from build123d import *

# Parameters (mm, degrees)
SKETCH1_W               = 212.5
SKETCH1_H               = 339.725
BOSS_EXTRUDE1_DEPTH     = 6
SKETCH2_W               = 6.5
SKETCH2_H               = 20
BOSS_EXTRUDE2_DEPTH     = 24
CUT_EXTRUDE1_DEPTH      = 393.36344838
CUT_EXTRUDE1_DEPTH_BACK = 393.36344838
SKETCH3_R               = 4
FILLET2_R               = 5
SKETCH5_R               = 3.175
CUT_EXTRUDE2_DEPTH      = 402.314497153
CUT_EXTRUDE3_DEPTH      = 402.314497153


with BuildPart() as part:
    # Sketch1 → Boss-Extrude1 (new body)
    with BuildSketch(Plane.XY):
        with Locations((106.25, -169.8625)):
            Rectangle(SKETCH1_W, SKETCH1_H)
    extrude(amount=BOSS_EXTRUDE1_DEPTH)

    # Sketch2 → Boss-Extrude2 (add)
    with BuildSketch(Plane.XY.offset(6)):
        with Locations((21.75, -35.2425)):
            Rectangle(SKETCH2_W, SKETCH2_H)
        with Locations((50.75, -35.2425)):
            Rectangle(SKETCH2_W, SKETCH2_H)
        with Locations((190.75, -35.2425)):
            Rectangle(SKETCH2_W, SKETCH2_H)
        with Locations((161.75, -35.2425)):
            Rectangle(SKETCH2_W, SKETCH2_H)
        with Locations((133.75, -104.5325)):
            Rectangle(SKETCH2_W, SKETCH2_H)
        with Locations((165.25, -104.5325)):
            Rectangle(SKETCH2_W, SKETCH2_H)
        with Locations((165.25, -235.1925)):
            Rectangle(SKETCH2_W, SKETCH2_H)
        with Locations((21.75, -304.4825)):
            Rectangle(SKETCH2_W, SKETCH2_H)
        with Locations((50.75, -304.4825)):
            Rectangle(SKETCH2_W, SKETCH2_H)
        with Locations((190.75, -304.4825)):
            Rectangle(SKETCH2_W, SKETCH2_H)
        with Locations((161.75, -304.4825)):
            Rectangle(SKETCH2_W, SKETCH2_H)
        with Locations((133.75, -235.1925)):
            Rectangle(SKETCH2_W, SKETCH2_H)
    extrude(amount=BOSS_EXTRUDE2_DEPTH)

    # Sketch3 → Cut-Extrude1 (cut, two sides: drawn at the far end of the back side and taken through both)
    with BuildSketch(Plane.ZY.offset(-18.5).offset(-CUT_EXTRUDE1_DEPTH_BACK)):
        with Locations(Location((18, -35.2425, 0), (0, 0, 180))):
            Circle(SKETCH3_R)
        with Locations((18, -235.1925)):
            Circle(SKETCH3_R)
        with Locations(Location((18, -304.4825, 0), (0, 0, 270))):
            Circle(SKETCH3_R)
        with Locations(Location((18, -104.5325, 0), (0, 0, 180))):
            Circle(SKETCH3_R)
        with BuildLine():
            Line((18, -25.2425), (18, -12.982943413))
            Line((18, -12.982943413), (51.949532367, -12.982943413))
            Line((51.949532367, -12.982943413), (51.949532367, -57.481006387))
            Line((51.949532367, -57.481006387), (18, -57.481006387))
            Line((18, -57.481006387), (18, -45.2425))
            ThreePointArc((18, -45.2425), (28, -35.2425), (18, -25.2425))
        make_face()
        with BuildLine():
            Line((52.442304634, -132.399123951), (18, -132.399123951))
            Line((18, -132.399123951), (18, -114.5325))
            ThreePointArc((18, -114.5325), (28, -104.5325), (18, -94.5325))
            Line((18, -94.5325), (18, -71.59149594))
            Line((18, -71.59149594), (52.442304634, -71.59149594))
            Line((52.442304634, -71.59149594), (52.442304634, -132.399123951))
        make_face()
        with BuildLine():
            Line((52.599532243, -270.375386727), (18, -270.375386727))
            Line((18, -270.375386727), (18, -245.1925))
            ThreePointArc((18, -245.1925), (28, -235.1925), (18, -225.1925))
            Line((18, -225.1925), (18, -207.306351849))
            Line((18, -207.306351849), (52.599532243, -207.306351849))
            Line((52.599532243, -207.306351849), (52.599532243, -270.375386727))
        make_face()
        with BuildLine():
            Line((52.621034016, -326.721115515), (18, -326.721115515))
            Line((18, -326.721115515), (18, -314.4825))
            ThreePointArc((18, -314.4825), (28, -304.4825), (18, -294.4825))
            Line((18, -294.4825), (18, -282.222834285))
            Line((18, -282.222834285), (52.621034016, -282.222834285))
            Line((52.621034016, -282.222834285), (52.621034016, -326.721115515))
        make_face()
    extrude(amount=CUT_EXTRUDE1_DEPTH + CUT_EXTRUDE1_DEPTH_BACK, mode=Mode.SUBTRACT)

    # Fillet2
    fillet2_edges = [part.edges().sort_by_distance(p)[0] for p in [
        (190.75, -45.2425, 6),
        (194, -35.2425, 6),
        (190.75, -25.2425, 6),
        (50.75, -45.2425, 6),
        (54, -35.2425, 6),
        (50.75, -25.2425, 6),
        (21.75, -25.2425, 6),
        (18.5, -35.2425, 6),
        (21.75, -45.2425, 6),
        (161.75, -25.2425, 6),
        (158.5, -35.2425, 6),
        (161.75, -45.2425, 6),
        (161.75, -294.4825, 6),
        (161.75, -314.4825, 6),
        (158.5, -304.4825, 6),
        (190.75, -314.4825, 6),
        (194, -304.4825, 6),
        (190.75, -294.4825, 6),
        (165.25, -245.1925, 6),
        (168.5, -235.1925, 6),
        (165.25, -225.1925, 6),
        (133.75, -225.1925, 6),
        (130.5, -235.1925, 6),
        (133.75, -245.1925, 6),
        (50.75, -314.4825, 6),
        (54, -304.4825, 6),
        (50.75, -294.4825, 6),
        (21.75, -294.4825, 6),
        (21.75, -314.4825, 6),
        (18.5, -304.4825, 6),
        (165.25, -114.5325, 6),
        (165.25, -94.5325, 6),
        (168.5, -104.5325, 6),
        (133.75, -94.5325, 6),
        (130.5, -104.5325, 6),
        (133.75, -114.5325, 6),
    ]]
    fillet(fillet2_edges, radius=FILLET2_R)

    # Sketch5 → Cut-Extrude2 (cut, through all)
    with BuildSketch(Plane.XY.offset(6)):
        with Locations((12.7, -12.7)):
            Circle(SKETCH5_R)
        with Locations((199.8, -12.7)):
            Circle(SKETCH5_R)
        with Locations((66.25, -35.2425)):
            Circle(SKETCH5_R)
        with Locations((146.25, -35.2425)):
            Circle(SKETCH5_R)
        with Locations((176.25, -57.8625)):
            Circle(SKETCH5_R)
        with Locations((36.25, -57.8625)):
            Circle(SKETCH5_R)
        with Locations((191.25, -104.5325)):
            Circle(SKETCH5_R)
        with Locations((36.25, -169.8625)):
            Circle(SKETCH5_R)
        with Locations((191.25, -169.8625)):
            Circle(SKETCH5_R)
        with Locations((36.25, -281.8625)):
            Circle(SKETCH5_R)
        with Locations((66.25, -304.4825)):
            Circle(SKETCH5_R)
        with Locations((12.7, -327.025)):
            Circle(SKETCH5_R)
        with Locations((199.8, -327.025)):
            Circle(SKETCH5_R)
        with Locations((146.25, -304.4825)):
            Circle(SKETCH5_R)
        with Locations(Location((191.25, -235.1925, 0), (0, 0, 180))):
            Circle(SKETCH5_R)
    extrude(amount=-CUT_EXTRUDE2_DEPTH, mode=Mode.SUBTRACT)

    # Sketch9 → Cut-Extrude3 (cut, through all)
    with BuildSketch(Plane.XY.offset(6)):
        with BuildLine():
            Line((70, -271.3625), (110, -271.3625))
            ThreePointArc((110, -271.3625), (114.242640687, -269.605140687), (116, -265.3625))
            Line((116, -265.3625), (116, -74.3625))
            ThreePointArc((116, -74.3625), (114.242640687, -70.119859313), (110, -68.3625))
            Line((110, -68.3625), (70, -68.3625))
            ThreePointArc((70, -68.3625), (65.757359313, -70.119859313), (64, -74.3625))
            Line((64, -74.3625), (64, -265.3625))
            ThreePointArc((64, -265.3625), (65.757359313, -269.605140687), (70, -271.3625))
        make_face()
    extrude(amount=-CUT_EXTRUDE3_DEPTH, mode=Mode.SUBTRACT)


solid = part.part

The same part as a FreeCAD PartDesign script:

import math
import FreeCAD as App
import Part
import Sketcher
from FreeCAD import Vector


def edges_at(feature, points):
    """Names of the edges that pass closest to the given points."""
    edges = feature.Shape.Edges
    near = lambda p: min(range(len(edges)), key=lambda i: edges[i].distToShape(Part.Vertex(*p))[0])
    return sorted({f"Edge{near(p) + 1}" for p in points})

doc = App.newDocument("Part")
body = doc.addObject("PartDesign::Body", "Body")

sketch1 = body.newObject("Sketcher::SketchObject", "Sketch")
sketch1.AttachmentSupport = (doc.getObject("XY_Plane"), [""])
sketch1.MapMode = "FlatFace"
sketch1.addGeometry([
    Part.LineSegment(Vector(0, 0, 0), Vector(0, -340, 0)),
    Part.LineSegment(Vector(0, -340, 0), Vector(212, -340, 0)),
    Part.LineSegment(Vector(212, -340, 0), Vector(212, 0, 0)),
    Part.LineSegment(Vector(212, 0, 0), Vector(0, 0, 0)),
], False)
sketch1.addConstraint([
    Sketcher.Constraint("Coincident", 0, 2, 1, 1),
    Sketcher.Constraint("Coincident", 1, 2, 2, 1),
    Sketcher.Constraint("Coincident", 2, 2, 3, 1),
    Sketcher.Constraint("Coincident", 3, 2, 0, 1),
    Sketcher.Constraint("Vertical", 0),
    Sketcher.Constraint("Horizontal", 1),
    Sketcher.Constraint("Vertical", 2),
    Sketcher.Constraint("Horizontal", 3),
    Sketcher.Constraint("Coincident", 3, 2, -1, 1),
    Sketcher.Constraint("DistanceX", 1, 1, 1, 2, 212.5),
    Sketcher.Constraint("DistanceY", 0, 2, 0, 1, 339.725),
])
pad1 = body.newObject("PartDesign::Pad", "Pad")
pad1.Profile = sketch1
pad1.Length = 6

sketch2 = body.newObject("Sketcher::SketchObject", "Sketch001")
sketch2.AttachmentSupport = (doc.getObject("XY_Plane"), [""])
sketch2.MapMode = "FlatFace"
sketch2.AttachmentOffset = App.Placement(Vector(0, 0, 6), App.Rotation())
sketch2.addGeometry([
    Part.LineSegment(Vector(18, -25, 0), Vector(18, -45, 0)),
    Part.LineSegment(Vector(18, -45, 0), Vector(25, -45, 0)),
    Part.LineSegment(Vector(25, -45, 0), Vector(25, -25, 0)),
    Part.LineSegment(Vector(25, -25, 0), Vector(18, -25, 0)),
    Part.LineSegment(Vector(48, -25, 0), Vector(48, -45, 0)),
    Part.LineSegment(Vector(48, -45, 0), Vector(54, -45, 0)),
    Part.LineSegment(Vector(54, -45, 0), Vector(54, -25, 0)),
    Part.LineSegment(Vector(54, -25, 0), Vector(48, -25, 0)),
    Part.LineSegment(Vector(188, -25, 0), Vector(188, -45, 0)),
    Part.LineSegment(Vector(188, -45, 0), Vector(194, -45, 0)),
    Part.LineSegment(Vector(194, -45, 0), Vector(194, -25, 0)),
    Part.LineSegment(Vector(194, -25, 0), Vector(188, -25, 0)),
    Part.LineSegment(Vector(158, -25, 0), Vector(158, -45, 0)),
    Part.LineSegment(Vector(158, -45, 0), Vector(165, -45, 0)),
    Part.LineSegment(Vector(165, -45, 0), Vector(165, -25, 0)),
    Part.LineSegment(Vector(165, -25, 0), Vector(158, -25, 0)),
    Part.LineSegment(Vector(130, -95, 0), Vector(130, -115, 0)),
    Part.LineSegment(Vector(130, -115, 0), Vector(137, -115, 0)),
    Part.LineSegment(Vector(137, -115, 0), Vector(137, -95, 0)),
    Part.LineSegment(Vector(137, -95, 0), Vector(130, -95, 0)),
    Part.LineSegment(Vector(162, -95, 0), Vector(162, -115, 0)),
    Part.LineSegment(Vector(162, -115, 0), Vector(168, -115, 0)),
    Part.LineSegment(Vector(168, -115, 0), Vector(168, -95, 0)),
    Part.LineSegment(Vector(168, -95, 0), Vector(162, -95, 0)),
    Part.LineSegment(Vector(162, -225, 0), Vector(162, -245, 0)),
    Part.LineSegment(Vector(162, -245, 0), Vector(168, -245, 0)),
    Part.LineSegment(Vector(168, -245, 0), Vector(168, -225, 0)),
    Part.LineSegment(Vector(168, -225, 0), Vector(162, -225, 0)),
    Part.LineSegment(Vector(18, -294, 0), Vector(18, -314, 0)),
    Part.LineSegment(Vector(18, -314, 0), Vector(25, -314, 0)),
    Part.LineSegment(Vector(25, -314, 0), Vector(25, -294, 0)),
    Part.LineSegment(Vector(25, -294, 0), Vector(18, -294, 0)),
    Part.LineSegment(Vector(48, -294, 0), Vector(48, -314, 0)),
    Part.LineSegment(Vector(48, -314, 0), Vector(54, -314, 0)),
    Part.LineSegment(Vector(54, -314, 0), Vector(54, -294, 0)),
    Part.LineSegment(Vector(54, -294, 0), Vector(48, -294, 0)),
    Part.LineSegment(Vector(188, -294, 0), Vector(188, -314, 0)),
    Part.LineSegment(Vector(188, -314, 0), Vector(194, -314, 0)),
    Part.LineSegment(Vector(194, -314, 0), Vector(194, -294, 0)),
    Part.LineSegment(Vector(194, -294, 0), Vector(188, -294, 0)),
    Part.LineSegment(Vector(158, -294, 0), Vector(158, -314, 0)),
    Part.LineSegment(Vector(158, -314, 0), Vector(165, -314, 0)),
    Part.LineSegment(Vector(165, -314, 0), Vector(165, -294, 0)),
    Part.LineSegment(Vector(165, -294, 0), Vector(158, -294, 0)),
    Part.LineSegment(Vector(130, -225, 0), Vector(130, -245, 0)),
    Part.LineSegment(Vector(130, -245, 0), Vector(137, -245, 0)),
    Part.LineSegment(Vector(137, -245, 0), Vector(137, -225, 0)),
    Part.LineSegment(Vector(137, -225, 0), Vector(130, -225, 0)),
], False)
sketch2.addConstraint([
    Sketcher.Constraint("Coincident", 0, 2, 1, 1),
    Sketcher.Constraint("Coincident", 1, 2, 2, 1),
    Sketcher.Constraint("Coincident", 2, 2, 3, 1),
    Sketcher.Constraint("Coincident", 3, 2, 0, 1),
    Sketcher.Constraint("Coincident", 4, 2, 5, 1),
    Sketcher.Constraint("Coincident", 5, 2, 6, 1),
    Sketcher.Constraint("Coincident", 6, 2, 7, 1),
    Sketcher.Constraint("Coincident", 7, 2, 4, 1),
    Sketcher.Constraint("Coincident", 8, 2, 9, 1),
    Sketcher.Constraint("Coincident", 9, 2, 10, 1),
    Sketcher.Constraint("Coincident", 10, 2, 11, 1),
    Sketcher.Constraint("Coincident", 11, 2, 8, 1),
    Sketcher.Constraint("Coincident", 12, 2, 13, 1),
    Sketcher.Constraint("Coincident", 13, 2, 14, 1),
    Sketcher.Constraint("Coincident", 14, 2, 15, 1),
    Sketcher.Constraint("Coincident", 15, 2, 12, 1),
    Sketcher.Constraint("Coincident", 16, 2, 17, 1),
    Sketcher.Constraint("Coincident", 17, 2, 18, 1),
    Sketcher.Constraint("Coincident", 18, 2, 19, 1),
    Sketcher.Constraint("Coincident", 19, 2, 16, 1),
    Sketcher.Constraint("Coincident", 20, 2, 21, 1),
    Sketcher.Constraint("Coincident", 21, 2, 22, 1),
    Sketcher.Constraint("Coincident", 22, 2, 23, 1),
    Sketcher.Constraint("Coincident", 23, 2, 20, 1),
    Sketcher.Constraint("Coincident", 24, 2, 25, 1),
    Sketcher.Constraint("Coincident", 25, 2, 26, 1),
    Sketcher.Constraint("Coincident", 26, 2, 27, 1),
    Sketcher.Constraint("Coincident", 27, 2, 24, 1),
    Sketcher.Constraint("Coincident", 28, 2, 29, 1),
    Sketcher.Constraint("Coincident", 29, 2, 30, 1),
    Sketcher.Constraint("Coincident", 30, 2, 31, 1),
    Sketcher.Constraint("Coincident", 31, 2, 28, 1),
    Sketcher.Constraint("Coincident", 32, 2, 33, 1),
    Sketcher.Constraint("Coincident", 33, 2, 34, 1),
    Sketcher.Constraint("Coincident", 34, 2, 35, 1),
    Sketcher.Constraint("Coincident", 35, 2, 32, 1),
    Sketcher.Constraint("Coincident", 36, 2, 37, 1),
    Sketcher.Constraint("Coincident", 37, 2, 38, 1),
    Sketcher.Constraint("Coincident", 38, 2, 39, 1),
    Sketcher.Constraint("Coincident", 39, 2, 36, 1),
    Sketcher.Constraint("Coincident", 40, 2, 41, 1),
    Sketcher.Constraint("Coincident", 41, 2, 42, 1),
    Sketcher.Constraint("Coincident", 42, 2, 43, 1),
    Sketcher.Constraint("Coincident", 43, 2, 40, 1),
    Sketcher.Constraint("Coincident", 44, 2, 45, 1),
    Sketcher.Constraint("Coincident", 45, 2, 46, 1),
    Sketcher.Constraint("Coincident", 46, 2, 47, 1),
    Sketcher.Constraint("Coincident", 47, 2, 44, 1),
    Sketcher.Constraint("Vertical", 0),
    Sketcher.Constraint("Horizontal", 1),
    Sketcher.Constraint("Vertical", 2),
    Sketcher.Constraint("Horizontal", 3),
    Sketcher.Constraint("Vertical", 4),
    Sketcher.Constraint("Horizontal", 5),
    Sketcher.Constraint("Vertical", 6),
    Sketcher.Constraint("Horizontal", 7),
    Sketcher.Constraint("Vertical", 8),
    Sketcher.Constraint("Horizontal", 9),
    Sketcher.Constraint("Vertical", 10),
    Sketcher.Constraint("Horizontal", 11),
    Sketcher.Constraint("Vertical", 12),
    Sketcher.Constraint("Horizontal", 13),
    Sketcher.Constraint("Vertical", 14),
    Sketcher.Constraint("Horizontal", 15),
    Sketcher.Constraint("Vertical", 16),
    Sketcher.Constraint("Horizontal", 17),
    Sketcher.Constraint("Vertical", 18),
    Sketcher.Constraint("Horizontal", 19),
    Sketcher.Constraint("Vertical", 20),
    Sketcher.Constraint("Horizontal", 21),
    Sketcher.Constraint("Vertical", 22),
    Sketcher.Constraint("Horizontal", 23),
    Sketcher.Constraint("Vertical", 24),
    Sketcher.Constraint("Horizontal", 25),
    Sketcher.Constraint("Vertical", 26),
    Sketcher.Constraint("Horizontal", 27),
    Sketcher.Constraint("Vertical", 28),
    Sketcher.Constraint("Horizontal", 29),
    Sketcher.Constraint("Vertical", 30),
    Sketcher.Constraint("Horizontal", 31),
    Sketcher.Constraint("Vertical", 32),
    Sketcher.Constraint("Horizontal", 33),
    Sketcher.Constraint("Vertical", 34),
    Sketcher.Constraint("Horizontal", 35),
    Sketcher.Constraint("Vertical", 36),
    Sketcher.Constraint("Horizontal", 37),
    Sketcher.Constraint("Vertical", 38),
    Sketcher.Constraint("Horizontal", 39),
    Sketcher.Constraint("Vertical", 40),
    Sketcher.Constraint("Horizontal", 41),
    Sketcher.Constraint("Vertical", 42),
    Sketcher.Constraint("Horizontal", 43),
    Sketcher.Constraint("Vertical", 44),
    Sketcher.Constraint("Horizontal", 45),
    Sketcher.Constraint("Vertical", 46),
    Sketcher.Constraint("Horizontal", 47),
    Sketcher.Constraint("Horizontal", 1, 2, 4, 2),
    Sketcher.Constraint("Horizontal", 3, 2, 6, 2),
    Sketcher.Constraint("Horizontal", 5, 2, 8, 2),
    Sketcher.Constraint("Horizontal", 7, 2, 10, 2),
    Sketcher.Constraint("Horizontal", 9, 2, 12, 2),
    Sketcher.Constraint("Horizontal", 11, 2, 14, 2),
    Sketcher.Constraint("Horizontal", 17, 2, 20, 2),
    Sketcher.Constraint("Horizontal", 19, 2, 22, 2),
    Sketcher.Constraint("Horizontal", 29, 2, 32, 2),
    Sketcher.Constraint("Horizontal", 31, 2, 34, 2),
    Sketcher.Constraint("Horizontal", 33, 2, 36, 2),
    Sketcher.Constraint("Horizontal", 35, 2, 38, 2),
    Sketcher.Constraint("Horizontal", 37, 2, 40, 2),
    Sketcher.Constraint("Horizontal", 39, 2, 42, 2),
    Sketcher.Constraint("Horizontal", 25, 2, 44, 2),
    Sketcher.Constraint("Horizontal", 27, 2, 46, 2),
    Sketcher.Constraint("Vertical", 23, 2, 24, 2),
    Sketcher.Constraint("Vertical", 22, 2, 25, 2),
    Sketcher.Constraint("Vertical", 3, 2, 28, 2),
    Sketcher.Constraint("Vertical", 2, 2, 29, 2),
    Sketcher.Constraint("Vertical", 7, 2, 32, 2),
    Sketcher.Constraint("Vertical", 6, 2, 33, 2),
    Sketcher.Constraint("Vertical", 11, 2, 36, 2),
    Sketcher.Constraint("Vertical", 10, 2, 37, 2),
    Sketcher.Constraint("Vertical", 15, 2, 40, 2),
    Sketcher.Constraint("Vertical", 14, 2, 41, 2),
    Sketcher.Constraint("Vertical", 19, 2, 44, 2),
    Sketcher.Constraint("Vertical", 18, 2, 45, 2),
    Sketcher.Constraint("Equal", 3, 5),
    Sketcher.Constraint("Equal", 7, 9),
    Sketcher.Constraint("Equal", 11, 13),
    Sketcher.Constraint("Equal", 15, 17),
    Sketcher.Constraint("Equal", 19, 21),
    Sketcher.Constraint("Equal", 14, 16),
    Sketcher.Constraint("Equal", 22, 24),
    Sketcher.Constraint("Equal", 26, 28),
    Sketcher.Constraint("DistanceY", 0, 2, 0, 1, 20.0),
    Sketcher.Constraint("DistanceX", 1, 1, 1, 2, 6.5),
    Sketcher.Constraint("DistanceX", -1, 1, 1, 2, 25.0),
    Sketcher.Constraint("DistanceX", -1, 1, 5, 2, 54.0),
    Sketcher.Constraint("DistanceX", -1, 1, 9, 2, 194.0),
    Sketcher.Constraint("DistanceX", -1, 1, 13, 2, 165.0),
    Sketcher.Constraint("DistanceX", -1, 1, 17, 2, 137.0),
    Sketcher.Constraint("DistanceX", -1, 1, 20, 2, 162.0),
    Sketcher.Constraint("DistanceY", 16, 2, 12, 2, 69.29),
    Sketcher.Constraint("DistanceY", 24, 2, 20, 2, 130.66),
    Sketcher.Constraint("DistanceY", 28, 2, 24, 2, 69.29),
    Sketcher.Constraint("DistanceY", 0, 2, -1, 1, 45.2425),
])
pad2 = body.newObject("PartDesign::Pad", "Pad001")
pad2.Profile = sketch2
pad2.Length = 24

sketch3 = body.newObject("Sketcher::SketchObject", "Sketch002")
sketch3.AttachmentSupport = (doc.getObject("YZ_Plane"), [""])
sketch3.MapMode = "FlatFace"
sketch3.AttachmentOffset = App.Placement(Vector(0, 0, 18.5), App.Rotation())
sketch3.addGeometry([
    Part.Circle(Vector(-35.2, 18, 0), Vector(0, 0, 1), 4),
    Part.Circle(Vector(-235.2, 18, 0), Vector(0, 0, 1), 4),
    Part.Circle(Vector(-304.5, 18, 0), Vector(0, 0, 1), 4),
    Part.Circle(Vector(-104.5, 18, 0), Vector(0, 0, 1), 4),
    Part.LineSegment(Vector(-13, 18, 0), Vector(-25.2, 18, 0)),
    Part.ArcOfCircle(Part.Circle(Vector(-35.2, 18, 0), Vector(0, 0, 1), 10), math.radians(0), math.radians(180)),
    Part.LineSegment(Vector(-45.2, 18, 0), Vector(-57.5, 18, 0)),
    Part.LineSegment(Vector(-57.5, 18, 0), Vector(-57.5, 51.9, 0)),
    Part.LineSegment(Vector(-57.5, 51.9, 0), Vector(-13, 51.9, 0)),
    Part.LineSegment(Vector(-13, 51.9, 0), Vector(-13, 18, 0)),
    Part.LineSegment(Vector(-132.4, 18, 0), Vector(-132.4, 52.4, 0)),
    Part.LineSegment(Vector(-132.4, 52.4, 0), Vector(-71.6, 52.4, 0)),
    Part.LineSegment(Vector(-71.6, 52.4, 0), Vector(-71.6, 18, 0)),
    Part.LineSegment(Vector(-71.6, 18, 0), Vector(-94.5, 18, 0)),
    Part.ArcOfCircle(Part.Circle(Vector(-104.5, 18, 0), Vector(0, 0, 1), 10), math.radians(0), math.radians(180)),
    Part.LineSegment(Vector(-114.5, 18, 0), Vector(-132.4, 18, 0)),
    Part.LineSegment(Vector(-270.4, 18, 0), Vector(-270.4, 52.6, 0)),
    Part.LineSegment(Vector(-270.4, 52.6, 0), Vector(-207.3, 52.6, 0)),
    Part.LineSegment(Vector(-207.3, 52.6, 0), Vector(-207.3, 18, 0)),
    Part.LineSegment(Vector(-207.3, 18, 0), Vector(-225.2, 18, 0)),
    Part.ArcOfCircle(Part.Circle(Vector(-235.2, 18, 0), Vector(0, 0, 1), 10), math.radians(0), math.radians(180)),
    Part.LineSegment(Vector(-245.2, 18, 0), Vector(-270.4, 18, 0)),
    Part.LineSegment(Vector(-326.7, 18, 0), Vector(-326.7, 52.6, 0)),
    Part.LineSegment(Vector(-326.7, 52.6, 0), Vector(-282.2, 52.6, 0)),
    Part.LineSegment(Vector(-282.2, 52.6, 0), Vector(-282.2, 18, 0)),
    Part.LineSegment(Vector(-282.2, 18, 0), Vector(-294.5, 18, 0)),
    Part.ArcOfCircle(Part.Circle(Vector(-304.5, 18, 0), Vector(0, 0, 1), 10), math.radians(0), math.radians(180)),
    Part.LineSegment(Vector(-314.5, 18, 0), Vector(-326.7, 18, 0)),
], False)
sketch3.addConstraint([
    Sketcher.Constraint("Coincident", 4, 2, 5, 1),
    Sketcher.Constraint("Coincident", 5, 2, 6, 1),
    Sketcher.Constraint("Coincident", 6, 2, 7, 1),
    Sketcher.Constraint("Coincident", 7, 2, 8, 1),
    Sketcher.Constraint("Coincident", 8, 2, 9, 1),
    Sketcher.Constraint("Coincident", 9, 2, 4, 1),
    Sketcher.Constraint("Coincident", 10, 2, 11, 1),
    Sketcher.Constraint("Coincident", 11, 2, 12, 1),
    Sketcher.Constraint("Coincident", 12, 2, 13, 1),
    Sketcher.Constraint("Coincident", 13, 2, 14, 1),
    Sketcher.Constraint("Coincident", 14, 2, 15, 1),
    Sketcher.Constraint("Coincident", 15, 2, 10, 1),
    Sketcher.Constraint("Coincident", 16, 2, 17, 1),
    Sketcher.Constraint("Coincident", 17, 2, 18, 1),
    Sketcher.Constraint("Coincident", 18, 2, 19, 1),
    Sketcher.Constraint("Coincident", 19, 2, 20, 1),
    Sketcher.Constraint("Coincident", 20, 2, 21, 1),
    Sketcher.Constraint("Coincident", 21, 2, 16, 1),
    Sketcher.Constraint("Coincident", 22, 2, 23, 1),
    Sketcher.Constraint("Coincident", 23, 2, 24, 1),
    Sketcher.Constraint("Coincident", 24, 2, 25, 1),
    Sketcher.Constraint("Coincident", 25, 2, 26, 1),
    Sketcher.Constraint("Coincident", 26, 2, 27, 1),
    Sketcher.Constraint("Coincident", 27, 2, 22, 1),
    Sketcher.Constraint("Horizontal", 4),
    Sketcher.Constraint("Horizontal", 6),
    Sketcher.Constraint("Vertical", 7),
    Sketcher.Constraint("Horizontal", 8),
    Sketcher.Constraint("Vertical", 9),
    Sketcher.Constraint("Vertical", 10),
    Sketcher.Constraint("Horizontal", 11),
    Sketcher.Constraint("Vertical", 12),
    Sketcher.Constraint("Horizontal", 13),
    Sketcher.Constraint("Horizontal", 15),
    Sketcher.Constraint("Vertical", 16),
    Sketcher.Constraint("Horizontal", 17),
    Sketcher.Constraint("Vertical", 18),
    Sketcher.Constraint("Horizontal", 19),
    Sketcher.Constraint("Horizontal", 21),
    Sketcher.Constraint("Vertical", 22),
    Sketcher.Constraint("Horizontal", 23),
    Sketcher.Constraint("Vertical", 24),
    Sketcher.Constraint("Horizontal", 25),
    Sketcher.Constraint("Horizontal", 27),
    Sketcher.Constraint("Coincident", 5, 3, 0, 3),
    Sketcher.Constraint("Coincident", 14, 3, 3, 3),
    Sketcher.Constraint("Coincident", 20, 3, 1, 3),
    Sketcher.Constraint("Coincident", 26, 3, 2, 3),
    Sketcher.Constraint("Equal", 0, 1),
    Sketcher.Constraint("Equal", 1, 2),
    Sketcher.Constraint("Equal", 2, 3),
    Sketcher.Constraint("Equal", 5, 14),
    Sketcher.Constraint("Equal", 14, 20),
    Sketcher.Constraint("Equal", 20, 26),
    Sketcher.Constraint("Horizontal", 0, 3, 1, 3),
    Sketcher.Constraint("Horizontal", 1, 3, 2, 3),
    Sketcher.Constraint("Horizontal", 2, 3, 3, 3),
    Sketcher.Constraint("Horizontal", 26, 3, 4, 2),
    Sketcher.Constraint("Horizontal", 4, 2, 5, 2),
    Sketcher.Constraint("Horizontal", 9, 2, 12, 2),
    Sketcher.Constraint("Horizontal", 13, 2, 14, 2),
    Sketcher.Constraint("Horizontal", 15, 2, 18, 2),
    Sketcher.Constraint("Horizontal", 19, 2, 20, 2),
    Sketcher.Constraint("Horizontal", 21, 2, 24, 2),
    Sketcher.Constraint("Horizontal", 25, 2, 26, 2),
    Sketcher.Constraint("Diameter", 0, 8.0),
    Sketcher.Constraint("Radius", 5, 10.0),
    Sketcher.Constraint("DistanceY", -1, 1, 0, 3, 18.0),
    Sketcher.Constraint("DistanceX", 1, 3, 0, 3, 199.95),
    Sketcher.Constraint("DistanceX", 2, 3, 1, 3, 69.29),
    Sketcher.Constraint("DistanceX", 3, 3, 0, 3, 69.29),
    Sketcher.Constraint("DistanceX", 11, 1, 11, 2, 60.807628),
    Sketcher.Constraint("DistanceX", 19, 2, 19, 1, 17.886148),
    Sketcher.Constraint("DistanceX", 23, 1, 23, 2, 44.498281),
    Sketcher.Constraint("DistanceX", 0, 3, -1, 1, 35.2425),
    Sketcher.Constraint("DistanceY", 16, 2, 22, 2, 0.021502),
    Sketcher.Constraint("DistanceX", 4, 2, 4, 1, 12.259557),
    Sketcher.Constraint("DistanceX", 6, 2, 6, 1, 12.238506),
    Sketcher.Constraint("DistanceX", 13, 2, 13, 1, 22.941004),
    Sketcher.Constraint("DistanceX", 17, 1, 17, 2, 63.069035),
    Sketcher.Constraint("DistanceX", 25, 2, 25, 1, 12.259666),
    Sketcher.Constraint("DistanceY", 7, 1, 7, 2, 33.949532),
    Sketcher.Constraint("DistanceY", 10, 1, 10, 2, 34.442305),
    Sketcher.Constraint("DistanceY", 16, 1, 16, 2, 34.599532),
])
pocket1 = body.newObject("PartDesign::Pocket", "Pocket")
pocket1.Profile = sketch3
pocket1.Type = "ThroughAll"
pocket1.Midplane = True
doc.recompute()

fillet = body.newObject("PartDesign::Fillet", "Fillet")
fillet.Base = (pocket1, edges_at(pocket1, [
    (190.75, -45.242, 6),
    (194, -35.242, 6),
    (190.75, -25.242, 6),
    (50.75, -45.242, 6),
    (54, -35.242, 6),
    (50.75, -25.242, 6),
    (21.75, -25.242, 6),
    (18.5, -35.242, 6),
    (21.75, -45.242, 6),
    (161.75, -25.242, 6),
    (158.5, -35.242, 6),
    (161.75, -45.242, 6),
    (161.75, -294.483, 6),
    (161.75, -314.483, 6),
    (158.5, -304.483, 6),
    (190.75, -314.483, 6),
    (194, -304.483, 6),
    (190.75, -294.483, 6),
    (165.25, -245.192, 6),
    (168.5, -235.192, 6),
    (165.25, -225.192, 6),
    (133.75, -225.192, 6),
    (130.5, -235.192, 6),
    (133.75, -245.192, 6),
    (50.75, -314.483, 6),
    (54, -304.483, 6),
    (50.75, -294.483, 6),
    (21.75, -294.483, 6),
    (21.75, -314.483, 6),
    (18.5, -304.483, 6),
    (165.25, -114.532, 6),
    (165.25, -94.532, 6),
    (168.5, -104.532, 6),
    (133.75, -94.532, 6),
    (130.5, -104.532, 6),
    (133.75, -114.532, 6),
]))
fillet.Radius = 5

sketch4 = body.newObject("Sketcher::SketchObject", "Sketch003")
sketch4.AttachmentSupport = (doc.getObject("XY_Plane"), [""])
sketch4.MapMode = "FlatFace"
sketch4.AttachmentOffset = App.Placement(Vector(0, 0, 6), App.Rotation())
sketch4.addGeometry([
    Part.Circle(Vector(12.7, -12.7, 0), Vector(0, 0, 1), 3.2),
    Part.Circle(Vector(199.8, -12.7, 0), Vector(0, 0, 1), 3.2),
    Part.Circle(Vector(66.2, -35.2, 0), Vector(0, 0, 1), 3.2),
    Part.Circle(Vector(146.2, -35.2, 0), Vector(0, 0, 1), 3.2),
    Part.Circle(Vector(176.2, -57.9, 0), Vector(0, 0, 1), 3.2),
    Part.Circle(Vector(36.2, -57.9, 0), Vector(0, 0, 1), 3.2),
    Part.Circle(Vector(191.2, -104.5, 0), Vector(0, 0, 1), 3.2),
    Part.Circle(Vector(36.2, -169.9, 0), Vector(0, 0, 1), 3.2),
    Part.Circle(Vector(191.2, -169.9, 0), Vector(0, 0, 1), 3.2),
    Part.Circle(Vector(36.2, -281.9, 0), Vector(0, 0, 1), 3.2),
    Part.Circle(Vector(66.2, -304.5, 0), Vector(0, 0, 1), 3.2),
    Part.Circle(Vector(12.7, -327, 0), Vector(0, 0, 1), 3.2),
    Part.Circle(Vector(199.8, -327, 0), Vector(0, 0, 1), 3.2),
    Part.Circle(Vector(146.2, -304.5, 0), Vector(0, 0, 1), 3.2),
    Part.Circle(Vector(191.2, -235.2, 0), Vector(0, 0, 1), 3.2),
], False)
sketch4.addConstraint([
    Sketcher.Constraint("Equal", 0, 1),
    Sketcher.Constraint("Equal", 1, 2),
    Sketcher.Constraint("Equal", 2, 3),
    Sketcher.Constraint("Equal", 3, 4),
    Sketcher.Constraint("Equal", 4, 5),
    Sketcher.Constraint("Equal", 5, 6),
    Sketcher.Constraint("Equal", 6, 7),
    Sketcher.Constraint("Equal", 7, 8),
    Sketcher.Constraint("Equal", 8, 9),
    Sketcher.Constraint("Equal", 9, 10),
    Sketcher.Constraint("Equal", 10, 11),
    Sketcher.Constraint("Equal", 11, 12),
    Sketcher.Constraint("Equal", 12, 13),
    Sketcher.Constraint("Equal", 13, 14),
    Sketcher.Constraint("Horizontal", 0, 3, 1, 3),
    Sketcher.Constraint("Horizontal", 2, 3, 3, 3),
    Sketcher.Constraint("Horizontal", 4, 3, 5, 3),
    Sketcher.Constraint("Horizontal", 7, 3, 8, 3),
    Sketcher.Constraint("Horizontal", 11, 3, 12, 3),
    Sketcher.Constraint("Horizontal", 10, 3, 13, 3),
    Sketcher.Constraint("Vertical", 5, 3, 7, 3),
    Sketcher.Constraint("Vertical", 6, 3, 8, 3),
    Sketcher.Constraint("Vertical", 7, 3, 9, 3),
    Sketcher.Constraint("Vertical", 2, 3, 10, 3),
    Sketcher.Constraint("Vertical", 0, 3, 11, 3),
    Sketcher.Constraint("Vertical", 1, 3, 12, 3),
    Sketcher.Constraint("Vertical", 3, 3, 13, 3),
    Sketcher.Constraint("Vertical", 8, 3, 14, 3),
    Sketcher.Constraint("Diameter", 0, 6.35),
    Sketcher.Constraint("DistanceX", 2, 3, 3, 3, 80.0),
    Sketcher.Constraint("DistanceX", 3, 3, 4, 3, 30.0),
    Sketcher.Constraint("DistanceX", 5, 3, 2, 3, 30.0),
    Sketcher.Constraint("DistanceX", 4, 3, 6, 3, 15.0),
    Sketcher.Constraint("DistanceY", 7, 3, 5, 3, 112.0),
    Sketcher.Constraint("DistanceY", 9, 3, 7, 3, 112.0),
    Sketcher.Constraint("DistanceX", -1, 1, 0, 3, 12.7),
    Sketcher.Constraint("DistanceY", 0, 3, -1, 1, 12.7),
    Sketcher.Constraint("DistanceX", -1, 1, 1, 3, 199.8),
    Sketcher.Constraint("DistanceX", -1, 1, 2, 3, 66.25),
    Sketcher.Constraint("DistanceY", 4, 3, 3, 3, 22.62),
    Sketcher.Constraint("DistanceY", 6, 3, 4, 3, 46.67),
    Sketcher.Constraint("DistanceY", 10, 3, 9, 3, 22.62),
    Sketcher.Constraint("DistanceY", 14, 3, 8, 3, 65.33),
    Sketcher.Constraint("DistanceY", 11, 3, -1, 1, 327.025),
    Sketcher.Constraint("DistanceY", 2, 3, -1, 1, 35.2425),
])
pocket2 = body.newObject("PartDesign::Pocket", "Pocket001")
pocket2.Profile = sketch4
pocket2.Type = "ThroughAll"

sketch5 = body.newObject("Sketcher::SketchObject", "Sketch004")
sketch5.AttachmentSupport = (doc.getObject("XY_Plane"), [""])
sketch5.MapMode = "FlatFace"
sketch5.AttachmentOffset = App.Placement(Vector(0, 0, 6), App.Rotation())
sketch5.addGeometry([
    Part.LineSegment(Vector(70, -271, 0), Vector(110, -271, 0)),
    Part.ArcOfCircle(Part.Circle(Vector(110, -265, 0), Vector(0, 0, 1), 6), math.radians(-90), math.radians(0)),
    Part.LineSegment(Vector(116, -265, 0), Vector(116, -74, 0)),
    Part.ArcOfCircle(Part.Circle(Vector(110, -74, 0), Vector(0, 0, 1), 6), math.radians(0), math.radians(90)),
    Part.LineSegment(Vector(110, -68, 0), Vector(70, -68, 0)),
    Part.ArcOfCircle(Part.Circle(Vector(70, -74, 0), Vector(0, 0, 1), 6), math.radians(90), math.radians(180)),
    Part.LineSegment(Vector(64, -74, 0), Vector(64, -265, 0)),
    Part.ArcOfCircle(Part.Circle(Vector(70, -265, 0), Vector(0, 0, 1), 6), math.radians(180), math.radians(270)),
], False)
sketch5.addConstraint([
    Sketcher.Constraint("Tangent", 0, 2, 1, 1),
    Sketcher.Constraint("Tangent", 1, 2, 2, 1),
    Sketcher.Constraint("Tangent", 2, 2, 3, 1),
    Sketcher.Constraint("Tangent", 3, 2, 4, 1),
    Sketcher.Constraint("Tangent", 4, 2, 5, 1),
    Sketcher.Constraint("Tangent", 5, 2, 6, 1),
    Sketcher.Constraint("Tangent", 6, 2, 7, 1),
    Sketcher.Constraint("Tangent", 7, 2, 0, 1),
    Sketcher.Constraint("Horizontal", 0),
    Sketcher.Constraint("Vertical", 2),
    Sketcher.Constraint("Horizontal", 4),
    Sketcher.Constraint("Vertical", 6),
    Sketcher.Constraint("Equal", 1, 3),
    Sketcher.Constraint("Equal", 3, 5),
    Sketcher.Constraint("Equal", 5, 7),
    Sketcher.Constraint("Radius", 1, 6.0),
    Sketcher.Constraint("DistanceX", 0, 1, 0, 2, 40.0),
    Sketcher.Constraint("DistanceY", 2, 1, 2, 2, 191.0),
    Sketcher.Constraint("DistanceX", -1, 1, 1, 3, 110.0),
    Sketcher.Constraint("DistanceY", 1, 3, -1, 1, 265.3625),
])
pocket3 = body.newObject("PartDesign::Pocket", "Pocket002")
pocket3.Profile = sketch5
pocket3.Type = "ThroughAll"

doc.recompute()
